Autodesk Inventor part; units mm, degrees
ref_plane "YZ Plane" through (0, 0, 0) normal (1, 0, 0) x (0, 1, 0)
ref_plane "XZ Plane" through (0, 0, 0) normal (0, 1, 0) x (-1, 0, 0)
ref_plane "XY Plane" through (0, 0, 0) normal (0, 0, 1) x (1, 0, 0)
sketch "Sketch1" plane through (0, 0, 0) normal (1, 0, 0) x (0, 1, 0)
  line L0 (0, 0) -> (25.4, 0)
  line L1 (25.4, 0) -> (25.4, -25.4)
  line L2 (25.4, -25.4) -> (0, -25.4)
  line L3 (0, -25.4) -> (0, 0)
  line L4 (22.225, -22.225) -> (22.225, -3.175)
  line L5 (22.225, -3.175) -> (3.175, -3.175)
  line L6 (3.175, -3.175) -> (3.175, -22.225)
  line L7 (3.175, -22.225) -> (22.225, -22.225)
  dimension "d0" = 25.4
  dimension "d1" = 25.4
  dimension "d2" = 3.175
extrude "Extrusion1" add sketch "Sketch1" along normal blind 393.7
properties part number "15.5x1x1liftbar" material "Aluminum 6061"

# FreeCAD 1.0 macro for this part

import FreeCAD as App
import Part
import Sketcher
from FreeCAD import Vector
Q = App.Units.Quantity


def add_polygon(sketch, points):
    """Adds a closed chain of lines whose ends are joined by coincident constraints."""
    first, n = sketch.GeometryCount, len(points)
    for a, b in zip(points, points[1:] + points[:1]):
        sketch.addGeometry(Part.LineSegment(App.Vector(*a, 0), App.Vector(*b, 0)), False)
    for i in range(n):
        sketch.addConstraint(Sketcher.Constraint("Coincident", first + i, 2, first + (i + 1) % n, 1))

doc = App.newDocument("Part")
params = doc.addObject("Spreadsheet::Sheet", "Params")
for row, (alias, value) in enumerate([
    ("sketch1_width", "1 in"),
    ("pad1_length", "15.5 in"),
], start=1):
    params.set(f"A{row}", alias)
    params.set(f"B{row}", "=" + value)
    params.setAlias(f"B{row}", alias)

body = doc.addObject("PartDesign::Body", "Body")

# Sketch on YZ plane
sketch1 = body.newObject("Sketcher::SketchObject", "Sketch")
sketch1.AttachmentSupport = (doc.getObject("YZ_Plane"), [""])
sketch1.MapMode = "FlatFace"
add_polygon(sketch1, [(25, 0), (0, 0), (0, -25), (25, -25)])  # lines 0-3
add_polygon(sketch1, [(22, -3), (22, -22), (3, -22), (3, -3)])  # lines 4-7
sketch1.addConstraint(Sketcher.Constraint("Horizontal", 0))
sketch1.addConstraint(Sketcher.Constraint("Vertical", 1))
sketch1.addConstraint(Sketcher.Constraint("Horizontal", 2))
sketch1.addConstraint(Sketcher.Constraint("Vertical", 3))
sketch1.addConstraint(Sketcher.Constraint("Vertical", 4))
sketch1.addConstraint(Sketcher.Constraint("Horizontal", 5))
sketch1.addConstraint(Sketcher.Constraint("Vertical", 6))
sketch1.addConstraint(Sketcher.Constraint("Horizontal", 7))
sketch1.addConstraint(Sketcher.Constraint("Coincident", 0, 2, -1, 1))
sketch1.addConstraint(Sketcher.Constraint("Equal", 2, 1))
sketch1.addConstraint(Sketcher.Constraint("Equal", 7, 4))
sketch1.addConstraint(Sketcher.Constraint("DistanceX", 0, 2, 0, 1, Q("1 in")))
sketch1.addConstraint(Sketcher.Constraint("DistanceX", -1, 1, 5, 2, Q("0.125 in")))
sketch1.addConstraint(Sketcher.Constraint("DistanceY", 6, 2, -1, 1, Q("0.125 in")))
sketch1.addConstraint(Sketcher.Constraint("DistanceX", 4, 2, 2, 2, Q("0.125 in")))
sketch1.setExpression("Constraints[19]", "Params.sketch1_width")
pad1 = body.newObject("PartDesign::Pad", "Pad")
pad1.Profile = sketch1
pad1.setExpression("Length", "Params.pad1_length")

doc.recompute()
